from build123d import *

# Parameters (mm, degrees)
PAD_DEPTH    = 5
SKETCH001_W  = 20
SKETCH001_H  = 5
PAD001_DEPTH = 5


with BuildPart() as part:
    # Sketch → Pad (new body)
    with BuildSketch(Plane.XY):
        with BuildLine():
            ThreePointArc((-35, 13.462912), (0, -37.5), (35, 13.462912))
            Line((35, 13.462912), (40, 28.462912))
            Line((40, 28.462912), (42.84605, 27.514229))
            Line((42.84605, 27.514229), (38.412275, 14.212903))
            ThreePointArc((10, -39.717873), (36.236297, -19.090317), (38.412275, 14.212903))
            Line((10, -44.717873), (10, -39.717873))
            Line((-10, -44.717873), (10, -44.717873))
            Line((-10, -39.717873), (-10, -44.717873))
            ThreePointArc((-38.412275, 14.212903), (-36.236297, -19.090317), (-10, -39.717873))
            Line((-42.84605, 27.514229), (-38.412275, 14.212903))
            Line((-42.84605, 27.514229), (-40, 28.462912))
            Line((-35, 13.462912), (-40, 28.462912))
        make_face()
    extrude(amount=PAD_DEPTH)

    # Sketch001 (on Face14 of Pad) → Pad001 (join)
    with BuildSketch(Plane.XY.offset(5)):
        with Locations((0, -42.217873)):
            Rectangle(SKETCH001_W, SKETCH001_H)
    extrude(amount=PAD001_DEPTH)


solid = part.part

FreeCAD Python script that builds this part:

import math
import FreeCAD as App
import Part
import Sketcher
from FreeCAD import Vector
Q = App.Units.Quantity


def add_polygon(sketch, points):
    """Adds a closed chain of lines whose ends are joined by coincident constraints."""
    first, n = sketch.GeometryCount, len(points)
    for a, b in zip(points, points[1:] + points[:1]):
        sketch.addGeometry(Part.LineSegment(App.Vector(*a, 0), App.Vector(*b, 0)), False)
    for i in range(n):
        sketch.addConstraint(Sketcher.Constraint("Coincident", first + i, 2, first + (i + 1) % n, 1))

doc = App.newDocument("Part")
body = doc.addObject("PartDesign::Body", "Body")

# Sketch on XY plane
sketch1 = body.newObject("Sketcher::SketchObject", "Sketch")
sketch1.AttachmentSupport = (doc.getObject("XY_Plane"), [""])
sketch1.MapMode = "FlatFace"
sketch1.addGeometry(Part.ArcOfCircle(Part.Circle(Vector(0, 0, 0), Vector(0, 0, 1), 37.5), math.radians(159), math.radians(381)), False)
sketch1.addGeometry(Part.LineSegment(Vector(-35, 13.5, 0), Vector(-40, 28.5, 0)), False)
sketch1.addGeometry(Part.LineSegment(Vector(-40, 28.5, 0), Vector(-42.8, 27.5, 0)), False)
sketch1.addGeometry(Part.LineSegment(Vector(-42.8, 27.5, 0), Vector(-38.4, 14.2, 0)), False)
sketch1.addGeometry(Part.ArcOfCircle(Part.Circle(Vector(0, 0, 0), Vector(0, 0, 1), 41), math.radians(160), math.radians(256)), False)
sketch1.addGeometry(Part.LineSegment(Vector(-10, -39.7, 0), Vector(-10, -44.7, 0)), False)
sketch1.addGeometry(Part.LineSegment(Vector(-10, -44.7, 0), Vector(10, -44.7, 0)), False)
sketch1.addGeometry(Part.LineSegment(Vector(10, -44.7, 0), Vector(10, -39.7, 0)), False)
sketch1.addGeometry(Part.ArcOfCircle(Part.Circle(Vector(0, 0, 0), Vector(0, 0, 1), 41), math.radians(-76), math.radians(20)), False)
sketch1.addGeometry(Part.LineSegment(Vector(38.4, 14.2, 0), Vector(42.8, 27.5, 0)), False)
sketch1.addGeometry(Part.LineSegment(Vector(42.8, 27.5, 0), Vector(40, 28.5, 0)), False)
sketch1.addGeometry(Part.LineSegment(Vector(40, 28.5, 0), Vector(35, 13.5, 0)), False)
sketch1.addConstraint(Sketcher.Constraint("Coincident", 0, 1, 1, 1))
sketch1.addConstraint(Sketcher.Constraint("Coincident", 1, 2, 2, 1))
sketch1.addConstraint(Sketcher.Constraint("Coincident", 2, 2, 3, 1))
sketch1.addConstraint(Sketcher.Constraint("Coincident", 3, 2, 4, 1))
sketch1.addConstraint(Sketcher.Constraint("Coincident", 4, 2, 5, 1))
sketch1.addConstraint(Sketcher.Constraint("Coincident", 5, 2, 6, 1))
sketch1.addConstraint(Sketcher.Constraint("Coincident", 6, 2, 7, 1))
sketch1.addConstraint(Sketcher.Constraint("Coincident", 7, 2, 8, 1))
sketch1.addConstraint(Sketcher.Constraint("Coincident", 8, 2, 9, 1))
sketch1.addConstraint(Sketcher.Constraint("Coincident", 9, 2, 10, 1))
sketch1.addConstraint(Sketcher.Constraint("Coincident", 10, 2, 11, 1))
sketch1.addConstraint(Sketcher.Constraint("Coincident", 11, 2, 0, 2))
sketch1.addConstraint(Sketcher.Constraint("Vertical", 5))
sketch1.addConstraint(Sketcher.Constraint("Horizontal", 6))
sketch1.addConstraint(Sketcher.Constraint("Vertical", 7))
sketch1.addConstraint(Sketcher.Constraint("Coincident", 0, 3, -1, 1))
sketch1.addConstraint(Sketcher.Constraint("Coincident", 4, 3, -1, 1))
sketch1.addConstraint(Sketcher.Constraint("Coincident", 8, 3, -1, 1))
sketch1.addConstraint(Sketcher.Constraint("Equal", 4, 8))
sketch1.addConstraint(Sketcher.Constraint("Symmetric", 2, 2, 9, 2, -2))
sketch1.addConstraint(Sketcher.Constraint("Symmetric", 1, 2, 10, 2, -2))
sketch1.addConstraint(Sketcher.Constraint("Perpendicular", 1, 2))
sketch1.addConstraint(Sketcher.Constraint("Perpendicular", 2, 3))
sketch1.addConstraint(Sketcher.Constraint("Perpendicular", 9, 10))
sketch1.addConstraint(Sketcher.Constraint("Perpendicular", 10, 11))
sketch1.addConstraint(Sketcher.Constraint("Horizontal", 4, 2, 7, 2))
sketch1.addConstraint(Sketcher.Constraint("Radius", 0, Q("37.5 mm")))
sketch1.addConstraint(Sketcher.Constraint("DistanceX", 6, 1, 6, 2, Q("20 mm")))
sketch1.addConstraint(Sketcher.Constraint("DistanceY", 5, 2, 5, 1, Q("5 mm")))
sketch1.addConstraint(Sketcher.Constraint("Distance", 2, Q("3 mm")))
sketch1.addConstraint(Sketcher.Constraint("DistanceX", 0, 1, -1, 1, Q("35 mm")))
sketch1.addConstraint(Sketcher.Constraint("DistanceX", 1, 2, -1, 1, Q("40 mm")))
sketch1.addConstraint(Sketcher.Constraint("DistanceY", 0, 1, 1, 2, Q("15 mm")))
sketch1.addConstraint(Sketcher.Constraint("Radius", 4, Q("40.957411 mm")))
pad1 = body.newObject("PartDesign::Pad", "Pad")
pad1.Profile = sketch1
pad1.Length = 5

# Sketch on XY plane
sketch2 = body.newObject("Sketcher::SketchObject", "Sketch001")
sketch2.AttachmentSupport = (doc.getObject("XY_Plane"), [""])
sketch2.MapMode = "FlatFace"
sketch2.AttachmentOffset = App.Placement(Vector(0, 0, 5), App.Rotation())
add_polygon(sketch2, [(-10, -40), (-10, -45), (10, -45), (10, -40)])  # lines 0-3
sketch2.addConstraint(Sketcher.Constraint("Vertical", 0))
sketch2.addConstraint(Sketcher.Constraint("Horizontal", 1))
sketch2.addConstraint(Sketcher.Constraint("Vertical", 2))
sketch2.addConstraint(Sketcher.Constraint("Horizontal", 3))
sketch2.addConstraint(Sketcher.Constraint("DistanceX", 1, 1, 1, 2, Q("20 mm")))
sketch2.addConstraint(Sketcher.Constraint("DistanceY", 0, 2, 0, 1, Q("5 mm")))
sketch2.addConstraint(Sketcher.Constraint("DistanceX", 0, 2, -1, 1, Q("10 mm")))
sketch2.addConstraint(Sketcher.Constraint("DistanceY", 0, 2, -1, 1, Q("44.717873 mm")))
pad2 = body.newObject("PartDesign::Pad", "Pad001")
pad2.Profile = sketch2
pad2.Length = 5

doc.recompute()
